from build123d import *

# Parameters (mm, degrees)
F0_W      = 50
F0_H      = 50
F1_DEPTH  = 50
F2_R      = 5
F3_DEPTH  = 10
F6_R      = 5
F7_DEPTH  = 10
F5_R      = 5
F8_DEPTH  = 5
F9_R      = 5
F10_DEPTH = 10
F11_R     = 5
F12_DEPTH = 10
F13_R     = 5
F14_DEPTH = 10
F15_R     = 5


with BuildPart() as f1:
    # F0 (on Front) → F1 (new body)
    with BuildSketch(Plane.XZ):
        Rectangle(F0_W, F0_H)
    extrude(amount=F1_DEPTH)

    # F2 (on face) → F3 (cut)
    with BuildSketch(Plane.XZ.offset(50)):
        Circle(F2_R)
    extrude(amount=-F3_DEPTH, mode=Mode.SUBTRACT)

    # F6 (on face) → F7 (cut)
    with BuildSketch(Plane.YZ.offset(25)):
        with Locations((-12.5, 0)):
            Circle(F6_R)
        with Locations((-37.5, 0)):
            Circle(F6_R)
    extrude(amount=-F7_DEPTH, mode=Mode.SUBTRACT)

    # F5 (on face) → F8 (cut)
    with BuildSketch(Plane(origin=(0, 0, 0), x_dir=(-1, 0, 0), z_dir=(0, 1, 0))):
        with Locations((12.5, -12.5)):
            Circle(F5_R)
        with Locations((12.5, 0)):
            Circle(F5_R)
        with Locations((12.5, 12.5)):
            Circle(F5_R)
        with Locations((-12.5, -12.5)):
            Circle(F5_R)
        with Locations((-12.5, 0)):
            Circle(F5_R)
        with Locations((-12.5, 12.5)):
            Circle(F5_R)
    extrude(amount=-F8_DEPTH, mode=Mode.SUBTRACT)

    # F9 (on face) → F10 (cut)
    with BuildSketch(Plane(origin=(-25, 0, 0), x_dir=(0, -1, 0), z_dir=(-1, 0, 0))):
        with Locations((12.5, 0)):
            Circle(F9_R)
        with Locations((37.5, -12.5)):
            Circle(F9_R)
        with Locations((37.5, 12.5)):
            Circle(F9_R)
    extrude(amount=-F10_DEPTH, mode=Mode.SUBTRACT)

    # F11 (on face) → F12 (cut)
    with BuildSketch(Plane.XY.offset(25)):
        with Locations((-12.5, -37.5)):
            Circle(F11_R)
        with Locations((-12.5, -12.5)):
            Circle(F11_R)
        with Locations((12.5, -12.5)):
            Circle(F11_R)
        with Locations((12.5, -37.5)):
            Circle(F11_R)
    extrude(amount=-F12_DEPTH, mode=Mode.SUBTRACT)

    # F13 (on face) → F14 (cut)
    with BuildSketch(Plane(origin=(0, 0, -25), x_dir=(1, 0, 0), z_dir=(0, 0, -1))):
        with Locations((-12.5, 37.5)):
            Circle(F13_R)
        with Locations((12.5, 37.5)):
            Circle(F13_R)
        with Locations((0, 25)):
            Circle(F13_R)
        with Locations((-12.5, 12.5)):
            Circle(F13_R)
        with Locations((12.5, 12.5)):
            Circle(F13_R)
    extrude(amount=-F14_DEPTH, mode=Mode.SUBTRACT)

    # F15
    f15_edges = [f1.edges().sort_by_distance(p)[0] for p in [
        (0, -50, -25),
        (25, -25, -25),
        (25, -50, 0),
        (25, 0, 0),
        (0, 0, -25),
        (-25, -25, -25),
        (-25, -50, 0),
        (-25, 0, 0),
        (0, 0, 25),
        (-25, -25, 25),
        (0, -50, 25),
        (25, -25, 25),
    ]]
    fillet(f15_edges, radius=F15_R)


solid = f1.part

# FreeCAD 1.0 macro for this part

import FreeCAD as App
import Part
import Sketcher


def edges_at(feature, points):
    """Names of the edges that pass closest to the given points."""
    edges = feature.Shape.Edges
    near = lambda p: min(range(len(edges)), key=lambda i: edges[i].distToShape(Part.Vertex(*p))[0])
    return sorted({f"Edge{near(p) + 1}" for p in points})

doc = App.newDocument("Part")
params = doc.addObject("Spreadsheet::Sheet", "Params")
for row, (alias, value) in enumerate([
    ("sketch1_width", "50 mm"),
    ("pad1_length", "50 mm"),
    ("sketch2_diameter", "10 mm"),
    ("pocket1_length", "10 mm"),
    ("sketch3_diameter", "10 mm"),
    ("pocket2_length", "10 mm"),
    ("sketch4_diameter", "10 mm"),
    ("pocket3_length", "5 mm"),
    ("sketch5_diameter", "10 mm"),
    ("pocket4_length", "10 mm"),
    ("sketch6_diameter", "10 mm"),
    ("pocket5_length", "10 mm"),
    ("sketch7_diameter", "10 mm"),
    ("pocket6_length", "10 mm"),
    ("fillet_radius", "5 mm"),
], start=1):
    params.set(f"A{row}", alias)
    params.set(f"B{row}", "=" + value)
    params.setAlias(f"B{row}", alias)

body = doc.addObject("PartDesign::Body", "Body")

# Sketch on XZ plane
sketch1 = body.newObject("Sketcher::SketchObject", "Sketch")
sketch1.AttachmentSupport = (doc.getObject("XZ_Plane"), [""])
sketch1.MapMode = "FlatFace"
sketch1.addGeometry([
    Part.LineSegment(App.Vector(-25, 25, 0), App.Vector(-25, -25, 0)),
    Part.LineSegment(App.Vector(-25, -25, 0), App.Vector(25, -25, 0)),
    Part.LineSegment(App.Vector(25, -25, 0), App.Vector(25, 25, 0)),
    Part.LineSegment(App.Vector(25, 25, 0), App.Vector(-25, 25, 0)),
], False)
sketch1.addConstraint([
    Sketcher.Constraint("Coincident", 0, 2, 1, 1),
    Sketcher.Constraint("Coincident", 1, 2, 2, 1),
    Sketcher.Constraint("Coincident", 2, 2, 3, 1),
    Sketcher.Constraint("Coincident", 3, 2, 0, 1),
    Sketcher.Constraint("Vertical", 0),
    Sketcher.Constraint("Horizontal", 1),
    Sketcher.Constraint("Vertical", 2),
    Sketcher.Constraint("Horizontal", 3),
    Sketcher.Constraint("Symmetric", 0, 2, 2, 2, -1, 1),
    Sketcher.Constraint("Equal", 3, 0),
    Sketcher.Constraint("DistanceX", 1, 1, 1, 2, 50.0),
])
sketch1.setExpression("Constraints[10]", "Params.sketch1_width")
pad1 = body.newObject("PartDesign::Pad", "Pad")
pad1.Profile = sketch1
pad1.setExpression("Length", "Params.pad1_length")

# Sketch on XZ plane
sketch2 = body.newObject("Sketcher::SketchObject", "Sketch001")
sketch2.AttachmentSupport = (doc.getObject("XZ_Plane"), [""])
sketch2.MapMode = "FlatFace"
sketch2.AttachmentOffset = App.Placement(App.Vector(0, 0, 50), App.Rotation())
sketch2.addGeometry(Part.Circle(App.Vector(0, 0, 0), App.Vector(0, 0, 1), 5), False)
sketch2.addConstraint([
    Sketcher.Constraint("Coincident", 0, 3, -1, 1),
    Sketcher.Constraint("Diameter", 0, 10.0),
])
sketch2.setExpression("Constraints[1]", "Params.sketch2_diameter")
pocket1 = body.newObject("PartDesign::Pocket", "Pocket")
pocket1.Profile = sketch2
pocket1.setExpression("Length", "Params.pocket1_length")

# Sketch on YZ plane
sketch3 = body.newObject("Sketcher::SketchObject", "Sketch002")
sketch3.AttachmentSupport = (doc.getObject("YZ_Plane"), [""])
sketch3.MapMode = "FlatFace"
sketch3.AttachmentOffset = App.Placement(App.Vector(0, 0, 25), App.Rotation())
sketch3.addGeometry([
    Part.Circle(App.Vector(-12, 0, 0), App.Vector(0, 0, 1), 5),
    Part.Circle(App.Vector(-38, 0, 0), App.Vector(0, 0, 1), 5),
], False)
sketch3.addConstraint([
    Sketcher.Constraint("Equal", 0, 1),
    Sketcher.Constraint("PointOnObject", 0, 3, -1),
    Sketcher.Constraint("PointOnObject", 1, 3, -1),
    Sketcher.Constraint("Diameter", 0, 10.0),
    Sketcher.Constraint("DistanceX", 1, 3, 0, 3, 25.0),
    Sketcher.Constraint("DistanceX", 0, 3, -1, 1, 12.5),
])
sketch3.setExpression("Constraints[3]", "Params.sketch3_diameter")
pocket2 = body.newObject("PartDesign::Pocket", "Pocket001")
pocket2.Profile = sketch3
pocket2.setExpression("Length", "Params.pocket2_length")

# Sketch on XZ plane
sketch4 = body.newObject("Sketcher::SketchObject", "Sketch003")
sketch4.AttachmentSupport = (doc.getObject("XZ_Plane"), [""])
sketch4.MapMode = "FlatFace"
sketch4.addGeometry([
    Part.Circle(App.Vector(-12, -12, 0), App.Vector(0, 0, 1), 5),  # 0
    Part.Circle(App.Vector(-12, 0, 0), App.Vector(0, 0, 1), 5),  # 1
    Part.Circle(App.Vector(-12, 12, 0), App.Vector(0, 0, 1), 5),  # 2
    Part.Circle(App.Vector(12, -12, 0), App.Vector(0, 0, 1), 5),  # 3
    Part.Circle(App.Vector(12, 0, 0), App.Vector(0, 0, 1), 5),  # 4
    Part.Circle(App.Vector(12, 12, 0), App.Vector(0, 0, 1), 5),  # 5
], False)
sketch4.addConstraint([
    Sketcher.Constraint("Equal", 0, 1),
    Sketcher.Constraint("Equal", 1, 2),
    Sketcher.Constraint("Equal", 2, 3),
    Sketcher.Constraint("Equal", 3, 4),
    Sketcher.Constraint("Equal", 4, 5),
    Sketcher.Constraint("Symmetric", 2, 3, 3, 3, -1, 1),
    Sketcher.Constraint("Symmetric", 1, 3, 4, 3, -1, 1),
    Sketcher.Constraint("Symmetric", 0, 3, 5, 3, -1, 1),
    Sketcher.Constraint("Symmetric", 0, 3, 3, 3, -2),
    Sketcher.Constraint("PointOnObject", 1, 3, -1),
    Sketcher.Constraint("Vertical", 0, 3, 1, 3),
    Sketcher.Constraint("Diameter", 0, 10.0),
    Sketcher.Constraint("DistanceY", 0, 3, 2, 3, 25.0),
    Sketcher.Constraint("DistanceX", 0, 3, 3, 3, 25.0),
])
sketch4.setExpression("Constraints[11]", "Params.sketch4_diameter")
pocket3 = body.newObject("PartDesign::Pocket", "Pocket002")
pocket3.Profile = sketch4
pocket3.setExpression("Length", "Params.pocket3_length")
pocket3.Reversed = True

# Sketch on YZ plane
sketch5 = body.newObject("Sketcher::SketchObject", "Sketch004")
sketch5.AttachmentSupport = (doc.getObject("YZ_Plane"), [""])
sketch5.MapMode = "FlatFace"
sketch5.AttachmentOffset = App.Placement(App.Vector(0, 0, -25), App.Rotation())
sketch5.addGeometry([
    Part.Circle(App.Vector(-12, 0, 0), App.Vector(0, 0, 1), 5),
    Part.Circle(App.Vector(-38, -12, 0), App.Vector(0, 0, 1), 5),
    Part.Circle(App.Vector(-38, 12, 0), App.Vector(0, 0, 1), 5),
], False)
sketch5.addConstraint([
    Sketcher.Constraint("Equal", 0, 1),
    Sketcher.Constraint("Equal", 1, 2),
    Sketcher.Constraint("Symmetric", 1, 3, 2, 3, -1),
    Sketcher.Constraint("PointOnObject", 0, 3, -1),
    Sketcher.Constraint("Diameter", 0, 10.0),
    Sketcher.Constraint("DistanceX", 1, 3, 0, 3, 25.0),
    Sketcher.Constraint("DistanceY", 1, 3, 2, 3, 25.0),
    Sketcher.Constraint("DistanceX", 0, 3, -1, 1, 12.5),
])
sketch5.setExpression("Constraints[4]", "Params.sketch5_diameter")
pocket4 = body.newObject("PartDesign::Pocket", "Pocket003")
pocket4.Profile = sketch5
pocket4.setExpression("Length", "Params.pocket4_length")
pocket4.Reversed = True

# Sketch on XY plane
sketch6 = body.newObject("Sketcher::SketchObject", "Sketch005")
sketch6.AttachmentSupport = (doc.getObject("XY_Plane"), [""])
sketch6.MapMode = "FlatFace"
sketch6.AttachmentOffset = App.Placement(App.Vector(0, 0, 25), App.Rotation())
sketch6.addGeometry([
    Part.Circle(App.Vector(-12, -38, 0), App.Vector(0, 0, 1), 5),
    Part.Circle(App.Vector(-12, -12, 0), App.Vector(0, 0, 1), 5),
    Part.Circle(App.Vector(12, -12, 0), App.Vector(0, 0, 1), 5),
    Part.Circle(App.Vector(12, -38, 0), App.Vector(0, 0, 1), 5),
], False)
sketch6.addConstraint([
    Sketcher.Constraint("Equal", 0, 1),
    Sketcher.Constraint("Equal", 1, 2),
    Sketcher.Constraint("Equal", 2, 3),
    Sketcher.Constraint("Symmetric", 1, 3, 2, 3, -2),
    Sketcher.Constraint("Symmetric", 0, 3, 3, 3, -2),
    Sketcher.Constraint("Vertical", 0, 3, 1, 3),
    Sketcher.Constraint("Diameter", 0, 10.0),
    Sketcher.Constraint("DistanceY", 0, 3, 1, 3, 25.0),
    Sketcher.Constraint("DistanceX", 1, 3, 2, 3, 25.0),
    Sketcher.Constraint("DistanceY", 0, 3, -1, 1, 37.5),
])
sketch6.setExpression("Constraints[6]", "Params.sketch6_diameter")
pocket5 = body.newObject("PartDesign::Pocket", "Pocket004")
pocket5.Profile = sketch6
pocket5.setExpression("Length", "Params.pocket5_length")

# Sketch on XY plane
sketch7 = body.newObject("Sketcher::SketchObject", "Sketch006")
sketch7.AttachmentSupport = (doc.getObject("XY_Plane"), [""])
sketch7.MapMode = "FlatFace"
sketch7.AttachmentOffset = App.Placement(App.Vector(0, 0, -25), App.Rotation())
sketch7.addGeometry([
    Part.Circle(App.Vector(-12, -38, 0), App.Vector(0, 0, 1), 5),  # 0
    Part.Circle(App.Vector(12, -38, 0), App.Vector(0, 0, 1), 5),  # 1
    Part.Circle(App.Vector(0, -25, 0), App.Vector(0, 0, 1), 5),  # 2
    Part.Circle(App.Vector(-12, -12, 0), App.Vector(0, 0, 1), 5),  # 3
    Part.Circle(App.Vector(12, -12, 0), App.Vector(0, 0, 1), 5),  # 4
], False)
sketch7.addConstraint([
    Sketcher.Constraint("Equal", 0, 1),
    Sketcher.Constraint("Equal", 1, 2),
    Sketcher.Constraint("Equal", 2, 3),
    Sketcher.Constraint("Equal", 3, 4),
    Sketcher.Constraint("Symmetric", 0, 3, 1, 3, -2),
    Sketcher.Constraint("Symmetric", 3, 3, 4, 3, -2),
    Sketcher.Constraint("PointOnObject", 2, 3, -2),
    Sketcher.Constraint("Vertical", 0, 3, 3, 3),
    Sketcher.Constraint("Diameter", 0, 10.0),
    Sketcher.Constraint("DistanceY", 2, 3, -1, 1, 25.0),
    Sketcher.Constraint("DistanceX", 0, 3, 1, 3, 25.0),
    Sketcher.Constraint("DistanceY", 0, 3, 3, 3, 25.0),
    Sketcher.Constraint("DistanceY", 0, 3, -1, 1, 37.5),
])
sketch7.setExpression("Constraints[8]", "Params.sketch7_diameter")
pocket6 = body.newObject("PartDesign::Pocket", "Pocket005")
pocket6.Profile = sketch7
pocket6.setExpression("Length", "Params.pocket6_length")
pocket6.Reversed = True
doc.recompute()

fillet = body.newObject("PartDesign::Fillet", "Fillet")
fillet.Base = (pocket6, edges_at(pocket6, [
    (0, -50, -25),
    (25, -25, -25),
    (25, -50, 0),
    (25, 0, 0),
    (0, 0, -25),
    (-25, -25, -25),
    (-25, -50, 0),
    (-25, 0, 0),
    (0, 0, 25),
    (-25, -25, 25),
    (0, -50, 25),
    (25, -25, 25),
]))
fillet.setExpression("Radius", "Params.fillet_radius")

doc.recompute()
